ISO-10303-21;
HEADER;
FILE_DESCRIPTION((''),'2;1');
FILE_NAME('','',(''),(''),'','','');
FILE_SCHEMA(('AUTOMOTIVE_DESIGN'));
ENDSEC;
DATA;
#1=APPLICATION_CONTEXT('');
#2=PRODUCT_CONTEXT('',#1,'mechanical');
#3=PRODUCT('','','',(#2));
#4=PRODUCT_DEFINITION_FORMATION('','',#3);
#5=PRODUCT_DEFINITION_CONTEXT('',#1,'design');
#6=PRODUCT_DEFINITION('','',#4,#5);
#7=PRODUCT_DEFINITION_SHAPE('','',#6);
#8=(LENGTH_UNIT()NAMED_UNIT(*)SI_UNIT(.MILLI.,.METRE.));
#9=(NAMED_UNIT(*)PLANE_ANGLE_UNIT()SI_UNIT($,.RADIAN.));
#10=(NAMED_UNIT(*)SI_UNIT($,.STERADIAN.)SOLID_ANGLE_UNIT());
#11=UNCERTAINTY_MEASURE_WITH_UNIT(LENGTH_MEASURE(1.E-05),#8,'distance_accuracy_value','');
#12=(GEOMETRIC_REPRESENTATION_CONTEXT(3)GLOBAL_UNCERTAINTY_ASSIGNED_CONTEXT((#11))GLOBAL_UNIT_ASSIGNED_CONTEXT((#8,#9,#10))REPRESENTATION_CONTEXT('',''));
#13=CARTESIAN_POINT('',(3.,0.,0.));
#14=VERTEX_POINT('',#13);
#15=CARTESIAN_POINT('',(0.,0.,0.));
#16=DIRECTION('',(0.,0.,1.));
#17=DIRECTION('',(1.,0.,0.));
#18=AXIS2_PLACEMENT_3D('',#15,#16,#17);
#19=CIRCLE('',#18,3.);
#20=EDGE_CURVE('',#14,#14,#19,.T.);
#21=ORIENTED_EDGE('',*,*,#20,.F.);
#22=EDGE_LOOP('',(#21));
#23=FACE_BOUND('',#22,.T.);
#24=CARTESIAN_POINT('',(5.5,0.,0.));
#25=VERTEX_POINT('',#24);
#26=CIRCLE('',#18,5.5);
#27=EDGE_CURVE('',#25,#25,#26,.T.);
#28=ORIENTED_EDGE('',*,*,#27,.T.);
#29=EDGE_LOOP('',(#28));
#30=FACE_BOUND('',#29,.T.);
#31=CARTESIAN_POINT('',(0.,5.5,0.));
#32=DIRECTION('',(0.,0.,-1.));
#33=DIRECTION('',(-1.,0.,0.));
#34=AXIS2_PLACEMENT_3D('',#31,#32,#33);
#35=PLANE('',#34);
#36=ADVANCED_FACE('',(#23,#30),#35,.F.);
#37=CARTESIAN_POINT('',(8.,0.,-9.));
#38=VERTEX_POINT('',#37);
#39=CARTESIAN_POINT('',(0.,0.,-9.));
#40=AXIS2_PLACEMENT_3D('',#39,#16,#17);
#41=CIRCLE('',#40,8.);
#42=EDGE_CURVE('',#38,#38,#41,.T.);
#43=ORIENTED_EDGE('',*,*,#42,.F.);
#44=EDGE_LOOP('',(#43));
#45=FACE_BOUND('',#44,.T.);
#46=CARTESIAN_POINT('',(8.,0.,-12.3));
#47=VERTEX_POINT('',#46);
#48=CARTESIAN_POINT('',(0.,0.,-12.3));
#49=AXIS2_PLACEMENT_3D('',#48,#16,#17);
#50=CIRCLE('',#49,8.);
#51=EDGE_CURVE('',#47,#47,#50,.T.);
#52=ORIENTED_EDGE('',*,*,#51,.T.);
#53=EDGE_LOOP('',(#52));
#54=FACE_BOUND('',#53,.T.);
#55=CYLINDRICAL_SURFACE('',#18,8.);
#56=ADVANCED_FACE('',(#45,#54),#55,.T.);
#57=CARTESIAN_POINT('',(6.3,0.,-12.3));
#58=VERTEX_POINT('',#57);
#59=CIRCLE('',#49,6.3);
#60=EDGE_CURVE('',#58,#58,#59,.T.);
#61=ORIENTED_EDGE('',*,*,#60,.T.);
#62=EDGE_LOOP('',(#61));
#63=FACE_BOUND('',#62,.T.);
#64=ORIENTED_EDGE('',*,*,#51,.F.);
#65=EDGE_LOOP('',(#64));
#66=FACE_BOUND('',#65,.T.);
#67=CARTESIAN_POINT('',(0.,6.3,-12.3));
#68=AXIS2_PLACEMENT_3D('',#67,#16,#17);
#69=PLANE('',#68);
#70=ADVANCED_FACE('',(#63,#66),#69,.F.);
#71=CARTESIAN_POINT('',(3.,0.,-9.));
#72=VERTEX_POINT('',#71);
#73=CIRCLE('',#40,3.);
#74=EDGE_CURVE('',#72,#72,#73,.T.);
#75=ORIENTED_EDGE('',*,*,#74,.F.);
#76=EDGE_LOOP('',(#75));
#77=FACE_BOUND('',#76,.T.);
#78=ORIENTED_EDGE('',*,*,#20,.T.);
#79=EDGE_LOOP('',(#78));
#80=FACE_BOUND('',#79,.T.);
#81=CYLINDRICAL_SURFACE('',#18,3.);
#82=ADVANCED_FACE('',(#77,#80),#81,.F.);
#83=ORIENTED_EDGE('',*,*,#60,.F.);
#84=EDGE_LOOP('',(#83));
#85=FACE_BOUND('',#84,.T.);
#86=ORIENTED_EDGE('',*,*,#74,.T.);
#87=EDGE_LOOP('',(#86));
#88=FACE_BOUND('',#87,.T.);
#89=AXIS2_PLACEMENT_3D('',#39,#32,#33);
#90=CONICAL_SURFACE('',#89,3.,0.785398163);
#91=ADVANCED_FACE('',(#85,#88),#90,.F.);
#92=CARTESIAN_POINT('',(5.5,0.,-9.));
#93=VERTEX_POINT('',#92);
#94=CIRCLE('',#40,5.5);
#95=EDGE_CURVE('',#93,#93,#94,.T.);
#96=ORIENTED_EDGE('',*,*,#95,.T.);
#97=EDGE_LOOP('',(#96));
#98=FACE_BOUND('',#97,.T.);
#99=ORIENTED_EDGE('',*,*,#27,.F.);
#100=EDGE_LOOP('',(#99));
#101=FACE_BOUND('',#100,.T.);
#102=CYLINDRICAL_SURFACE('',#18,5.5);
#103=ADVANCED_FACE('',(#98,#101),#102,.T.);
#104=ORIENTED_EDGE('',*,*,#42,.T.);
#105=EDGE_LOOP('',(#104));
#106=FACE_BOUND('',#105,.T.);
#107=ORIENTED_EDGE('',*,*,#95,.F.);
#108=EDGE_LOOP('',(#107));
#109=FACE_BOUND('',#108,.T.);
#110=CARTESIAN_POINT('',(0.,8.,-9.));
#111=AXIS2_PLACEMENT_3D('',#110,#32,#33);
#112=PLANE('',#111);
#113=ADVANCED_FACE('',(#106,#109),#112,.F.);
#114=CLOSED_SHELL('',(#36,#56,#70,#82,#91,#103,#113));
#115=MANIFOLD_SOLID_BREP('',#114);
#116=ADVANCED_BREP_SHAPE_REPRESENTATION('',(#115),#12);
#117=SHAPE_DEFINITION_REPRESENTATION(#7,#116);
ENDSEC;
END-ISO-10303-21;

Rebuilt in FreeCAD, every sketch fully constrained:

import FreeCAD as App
import Part
import Sketcher

V = App.Vector
Q = App.Units.Quantity


def add_polygon(sketch, points):
    """Adds a closed chain of lines whose ends are joined by coincident constraints."""
    first, n = sketch.GeometryCount, len(points)
    for a, b in zip(points, points[1:] + points[:1]):
        sketch.addGeometry(Part.LineSegment(App.Vector(*a, 0), App.Vector(*b, 0)), False)
    for i in range(n):
        sketch.addConstraint(Sketcher.Constraint("Coincident", first + i, 2, first + (i + 1) % n, 1))

doc = App.newDocument("Part")
body = doc.addObject("PartDesign::Body", "Body")

# Sketch on YZ plane
sketch1 = doc.addObject("Sketcher::SketchObject", "Sketch")
body.addObject(sketch1)
sketch1.AttachmentSupport = (doc.YZ_Plane, [""])
sketch1.MapMode = "FlatFace"
add_polygon(sketch1, [(3, 0), (3, -9), (6.3, -12.3), (8, -12.3), (8, -9), (5.5, -9), (5.5, 0)])  # lines 0-6
sketch1.addConstraint([
    Sketcher.Constraint("Vertical", 0),
    Sketcher.Constraint("Horizontal", 2),
    Sketcher.Constraint("Vertical", 3),
    Sketcher.Constraint("Horizontal", 4),
    Sketcher.Constraint("Vertical", 5),
    Sketcher.Constraint("Horizontal", 6),
    Sketcher.Constraint("PointOnObject", 5, 2, -1),
    Sketcher.Constraint("Horizontal", 0, 2, 3, 2),
    Sketcher.Constraint("Equal", 4, 6),
    Sketcher.Constraint("DistanceY", 0, 2, 0, 1, 9.0),
    Sketcher.Constraint("Angle", 1, Q("-45 deg")),
    Sketcher.Constraint("DistanceX", 2, 1, 2, 2, 1.7),
    Sketcher.Constraint("DistanceX", 4, 2, 4, 1, 2.5),
    Sketcher.Constraint("DistanceX", -1, 1, 0, 2, 3.0),
])
revolution = doc.addObject("PartDesign::Revolution", "Revolution")
body.addObject(revolution)
revolution.Profile = sketch1
revolution.ReferenceAxis = (sketch1, ["V_Axis"])
revolution.Angle = 360

doc.recompute()
